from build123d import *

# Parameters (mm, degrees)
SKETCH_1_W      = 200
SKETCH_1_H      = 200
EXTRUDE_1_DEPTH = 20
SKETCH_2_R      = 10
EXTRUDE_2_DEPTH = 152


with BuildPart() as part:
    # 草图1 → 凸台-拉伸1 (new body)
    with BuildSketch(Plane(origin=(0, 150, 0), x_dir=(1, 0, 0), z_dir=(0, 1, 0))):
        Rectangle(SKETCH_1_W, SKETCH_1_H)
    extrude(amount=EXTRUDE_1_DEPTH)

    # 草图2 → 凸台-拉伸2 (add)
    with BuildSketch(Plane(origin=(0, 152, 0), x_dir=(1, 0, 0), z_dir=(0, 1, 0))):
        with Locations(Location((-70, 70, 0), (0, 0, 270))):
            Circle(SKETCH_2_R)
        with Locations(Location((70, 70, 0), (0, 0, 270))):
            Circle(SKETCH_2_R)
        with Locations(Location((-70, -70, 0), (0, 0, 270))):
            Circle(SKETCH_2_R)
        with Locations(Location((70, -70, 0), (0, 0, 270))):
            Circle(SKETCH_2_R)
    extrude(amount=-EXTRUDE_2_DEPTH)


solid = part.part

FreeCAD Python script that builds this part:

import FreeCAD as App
import Part
import Sketcher
Q = App.Units.Quantity

doc = App.newDocument("Part")
body = doc.addObject("PartDesign::Body", "Body")

# Sketch on XZ plane
sketch1 = body.newObject("Sketcher::SketchObject", "Sketch")
sketch1.AttachmentSupport = (doc.getObject("XZ_Plane"), [""])
sketch1.MapMode = "FlatFace"
sketch1.AttachmentOffset = App.Placement(App.Vector(0, 0, -150), App.Rotation())
sketch1.addGeometry([
    Part.LineSegment(App.Vector(-100, -100, 0), App.Vector(-100, 100, 0)),
    Part.LineSegment(App.Vector(-100, 100, 0), App.Vector(100, 100, 0)),
    Part.LineSegment(App.Vector(100, 100, 0), App.Vector(100, -100, 0)),
    Part.LineSegment(App.Vector(100, -100, 0), App.Vector(-100, -100, 0)),
], False)
sketch1.addConstraint([
    Sketcher.Constraint("Coincident", 0, 2, 1, 1),
    Sketcher.Constraint("Coincident", 1, 2, 2, 1),
    Sketcher.Constraint("Coincident", 2, 2, 3, 1),
    Sketcher.Constraint("Coincident", 3, 2, 0, 1),
    Sketcher.Constraint("Vertical", 0),
    Sketcher.Constraint("Horizontal", 1),
    Sketcher.Constraint("Vertical", 2),
    Sketcher.Constraint("Horizontal", 3),
    Sketcher.Constraint("Symmetric", 0, 2, 2, 2, -1, 1),
    Sketcher.Constraint("Equal", 3, 0),
    Sketcher.Constraint("DistanceX", 1, 1, 1, 2, Q("200 mm")),
])
pad1 = body.newObject("PartDesign::Pad", "Pad")
pad1.Profile = sketch1
pad1.Length = 20
pad1.Reversed = True

# Sketch on XZ plane
sketch2 = body.newObject("Sketcher::SketchObject", "Sketch001")
sketch2.AttachmentSupport = (doc.getObject("XZ_Plane"), [""])
sketch2.MapMode = "FlatFace"
sketch2.AttachmentOffset = App.Placement(App.Vector(0, 0, -152), App.Rotation())
sketch2.addGeometry([
    Part.Circle(App.Vector(-70, -70, 0), App.Vector(0, 0, 1), 10),
    Part.Circle(App.Vector(70, -70, 0), App.Vector(0, 0, 1), 10),
    Part.Circle(App.Vector(-70, 70, 0), App.Vector(0, 0, 1), 10),
    Part.Circle(App.Vector(70, 70, 0), App.Vector(0, 0, 1), 10),
], False)
sketch2.addConstraint([
    Sketcher.Constraint("Equal", 0, 1),
    Sketcher.Constraint("Equal", 1, 2),
    Sketcher.Constraint("Equal", 2, 3),
    Sketcher.Constraint("Symmetric", 1, 3, 2, 3, -1, 1),
    Sketcher.Constraint("Symmetric", 0, 3, 3, 3, -1, 1),
    Sketcher.Constraint("Symmetric", 0, 3, 1, 3, -2),
    Sketcher.Constraint("Diameter", 0, Q("20 mm")),
    Sketcher.Constraint("DistanceX", 0, 3, -1, 1, Q("70 mm")),
    Sketcher.Constraint("DistanceY", 0, 3, -1, 1, Q("70 mm")),
])
pad2 = body.newObject("PartDesign::Pad", "Pad001")
pad2.Profile = sketch2
pad2.Length = 152

doc.recompute()
